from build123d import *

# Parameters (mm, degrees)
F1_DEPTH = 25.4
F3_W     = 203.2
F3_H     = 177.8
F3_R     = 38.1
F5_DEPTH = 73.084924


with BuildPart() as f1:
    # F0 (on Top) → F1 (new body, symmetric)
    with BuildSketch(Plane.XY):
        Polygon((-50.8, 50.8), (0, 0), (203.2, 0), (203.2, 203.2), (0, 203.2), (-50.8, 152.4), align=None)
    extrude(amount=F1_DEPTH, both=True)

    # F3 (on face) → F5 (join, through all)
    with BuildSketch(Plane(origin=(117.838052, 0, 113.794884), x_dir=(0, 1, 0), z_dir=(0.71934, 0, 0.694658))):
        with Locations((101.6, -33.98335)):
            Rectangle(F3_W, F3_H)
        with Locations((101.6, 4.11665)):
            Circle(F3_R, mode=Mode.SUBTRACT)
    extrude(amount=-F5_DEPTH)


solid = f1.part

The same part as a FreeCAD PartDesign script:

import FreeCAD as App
import Part
import Sketcher

V = App.Vector
Q = App.Units.Quantity


def add_polygon(sketch, points):
    """Adds a closed chain of lines whose ends are joined by coincident constraints."""
    first, n = sketch.GeometryCount, len(points)
    for a, b in zip(points, points[1:] + points[:1]):
        sketch.addGeometry(Part.LineSegment(App.Vector(*a, 0), App.Vector(*b, 0)), False)
    for i in range(n):
        sketch.addConstraint(Sketcher.Constraint("Coincident", first + i, 2, first + (i + 1) % n, 1))

doc = App.newDocument("Part")
body = doc.addObject("PartDesign::Body", "Body")

# Sketch on XY plane
sketch1 = body.newObject("Sketcher::SketchObject", "Sketch")
sketch1.AttachmentSupport = (doc.getObject("XY_Plane"), [""])
sketch1.MapMode = "FlatFace"
add_polygon(sketch1, [(-50.8, 50.8), (0, 0), (203.2, 0), (203.2, 203.2), (0, 203.2), (-50.8, 152.4)])  # lines 0-5
sketch1.addConstraint(Sketcher.Constraint("Horizontal", 1))
sketch1.addConstraint(Sketcher.Constraint("Vertical", 2))
sketch1.addConstraint(Sketcher.Constraint("Horizontal", 3))
sketch1.addConstraint(Sketcher.Constraint("Vertical", 5))
sketch1.addConstraint(Sketcher.Constraint("Coincident", 0, 2, -1, 1))
sketch1.addConstraint(Sketcher.Constraint("PointOnObject", 3, 2, -2))
sketch1.addConstraint(Sketcher.Constraint("Perpendicular", 0, 4))
sketch1.addConstraint(Sketcher.Constraint("Equal", 3, 2))
sketch1.addConstraint(Sketcher.Constraint("Equal", 0, 4))
sketch1.addConstraint(Sketcher.Constraint("DistanceX", 1, 1, 1, 2, Q("8 in")))
sketch1.addConstraint(Sketcher.Constraint("DistanceY", 5, 2, 5, 1, Q("4 in")))
pad1 = body.newObject("PartDesign::Pad", "Pad")
pad1.Profile = sketch1
pad1.Length = Q("2 in")
pad1.Midplane = True

# Sketch on an angled plane
sketch2 = body.newObject("Sketcher::SketchObject", "Sketch001")
sketch2.Placement = App.Placement(V(117.838052, 0, 113.794884), App.Rotation(V(0, 1, 0), V(-0.694658079, 0, 0.719340082), V(0.719340082, 0, 0.694658079), "ZXY"))
add_polygon(sketch2, [(0, 54.91665), (0, -122.88335), (203.2, -122.88335), (203.2, 54.91665)])  # lines 0-3
sketch2.addGeometry(Part.Circle(V(101.6, 4.11665, 0), V(0, 0, 1), 38.1), False)  # 4
sketch2.addConstraint(Sketcher.Constraint("Vertical", 0))
sketch2.addConstraint(Sketcher.Constraint("Horizontal", 1))
sketch2.addConstraint(Sketcher.Constraint("Vertical", 2))
sketch2.addConstraint(Sketcher.Constraint("Horizontal", 3))
sketch2.addConstraint(Sketcher.Constraint("PointOnObject", 0, 2, -2))
sketch2.addConstraint(Sketcher.Constraint("Diameter", 4, Q("3 in")))
sketch2.addConstraint(Sketcher.Constraint("DistanceX", 1, 1, 1, 2, Q("8 in")))
sketch2.addConstraint(Sketcher.Constraint("DistanceY", 0, 2, 0, 1, Q("7 in")))
sketch2.addConstraint(Sketcher.Constraint("DistanceX", -1, 1, 4, 3, Q("4 in")))
sketch2.addConstraint(Sketcher.Constraint("DistanceY", 0, 2, 4, 3, Q("5 in")))
sketch2.addConstraint(Sketcher.Constraint("DistanceY", -1, 1, 4, 3, Q("4.11665 mm")))
pad2 = body.newObject("PartDesign::Pad", "Pad001")
pad2.Profile = sketch2
pad2.Length = 73.084924
pad2.Reversed = True

doc.recompute()
